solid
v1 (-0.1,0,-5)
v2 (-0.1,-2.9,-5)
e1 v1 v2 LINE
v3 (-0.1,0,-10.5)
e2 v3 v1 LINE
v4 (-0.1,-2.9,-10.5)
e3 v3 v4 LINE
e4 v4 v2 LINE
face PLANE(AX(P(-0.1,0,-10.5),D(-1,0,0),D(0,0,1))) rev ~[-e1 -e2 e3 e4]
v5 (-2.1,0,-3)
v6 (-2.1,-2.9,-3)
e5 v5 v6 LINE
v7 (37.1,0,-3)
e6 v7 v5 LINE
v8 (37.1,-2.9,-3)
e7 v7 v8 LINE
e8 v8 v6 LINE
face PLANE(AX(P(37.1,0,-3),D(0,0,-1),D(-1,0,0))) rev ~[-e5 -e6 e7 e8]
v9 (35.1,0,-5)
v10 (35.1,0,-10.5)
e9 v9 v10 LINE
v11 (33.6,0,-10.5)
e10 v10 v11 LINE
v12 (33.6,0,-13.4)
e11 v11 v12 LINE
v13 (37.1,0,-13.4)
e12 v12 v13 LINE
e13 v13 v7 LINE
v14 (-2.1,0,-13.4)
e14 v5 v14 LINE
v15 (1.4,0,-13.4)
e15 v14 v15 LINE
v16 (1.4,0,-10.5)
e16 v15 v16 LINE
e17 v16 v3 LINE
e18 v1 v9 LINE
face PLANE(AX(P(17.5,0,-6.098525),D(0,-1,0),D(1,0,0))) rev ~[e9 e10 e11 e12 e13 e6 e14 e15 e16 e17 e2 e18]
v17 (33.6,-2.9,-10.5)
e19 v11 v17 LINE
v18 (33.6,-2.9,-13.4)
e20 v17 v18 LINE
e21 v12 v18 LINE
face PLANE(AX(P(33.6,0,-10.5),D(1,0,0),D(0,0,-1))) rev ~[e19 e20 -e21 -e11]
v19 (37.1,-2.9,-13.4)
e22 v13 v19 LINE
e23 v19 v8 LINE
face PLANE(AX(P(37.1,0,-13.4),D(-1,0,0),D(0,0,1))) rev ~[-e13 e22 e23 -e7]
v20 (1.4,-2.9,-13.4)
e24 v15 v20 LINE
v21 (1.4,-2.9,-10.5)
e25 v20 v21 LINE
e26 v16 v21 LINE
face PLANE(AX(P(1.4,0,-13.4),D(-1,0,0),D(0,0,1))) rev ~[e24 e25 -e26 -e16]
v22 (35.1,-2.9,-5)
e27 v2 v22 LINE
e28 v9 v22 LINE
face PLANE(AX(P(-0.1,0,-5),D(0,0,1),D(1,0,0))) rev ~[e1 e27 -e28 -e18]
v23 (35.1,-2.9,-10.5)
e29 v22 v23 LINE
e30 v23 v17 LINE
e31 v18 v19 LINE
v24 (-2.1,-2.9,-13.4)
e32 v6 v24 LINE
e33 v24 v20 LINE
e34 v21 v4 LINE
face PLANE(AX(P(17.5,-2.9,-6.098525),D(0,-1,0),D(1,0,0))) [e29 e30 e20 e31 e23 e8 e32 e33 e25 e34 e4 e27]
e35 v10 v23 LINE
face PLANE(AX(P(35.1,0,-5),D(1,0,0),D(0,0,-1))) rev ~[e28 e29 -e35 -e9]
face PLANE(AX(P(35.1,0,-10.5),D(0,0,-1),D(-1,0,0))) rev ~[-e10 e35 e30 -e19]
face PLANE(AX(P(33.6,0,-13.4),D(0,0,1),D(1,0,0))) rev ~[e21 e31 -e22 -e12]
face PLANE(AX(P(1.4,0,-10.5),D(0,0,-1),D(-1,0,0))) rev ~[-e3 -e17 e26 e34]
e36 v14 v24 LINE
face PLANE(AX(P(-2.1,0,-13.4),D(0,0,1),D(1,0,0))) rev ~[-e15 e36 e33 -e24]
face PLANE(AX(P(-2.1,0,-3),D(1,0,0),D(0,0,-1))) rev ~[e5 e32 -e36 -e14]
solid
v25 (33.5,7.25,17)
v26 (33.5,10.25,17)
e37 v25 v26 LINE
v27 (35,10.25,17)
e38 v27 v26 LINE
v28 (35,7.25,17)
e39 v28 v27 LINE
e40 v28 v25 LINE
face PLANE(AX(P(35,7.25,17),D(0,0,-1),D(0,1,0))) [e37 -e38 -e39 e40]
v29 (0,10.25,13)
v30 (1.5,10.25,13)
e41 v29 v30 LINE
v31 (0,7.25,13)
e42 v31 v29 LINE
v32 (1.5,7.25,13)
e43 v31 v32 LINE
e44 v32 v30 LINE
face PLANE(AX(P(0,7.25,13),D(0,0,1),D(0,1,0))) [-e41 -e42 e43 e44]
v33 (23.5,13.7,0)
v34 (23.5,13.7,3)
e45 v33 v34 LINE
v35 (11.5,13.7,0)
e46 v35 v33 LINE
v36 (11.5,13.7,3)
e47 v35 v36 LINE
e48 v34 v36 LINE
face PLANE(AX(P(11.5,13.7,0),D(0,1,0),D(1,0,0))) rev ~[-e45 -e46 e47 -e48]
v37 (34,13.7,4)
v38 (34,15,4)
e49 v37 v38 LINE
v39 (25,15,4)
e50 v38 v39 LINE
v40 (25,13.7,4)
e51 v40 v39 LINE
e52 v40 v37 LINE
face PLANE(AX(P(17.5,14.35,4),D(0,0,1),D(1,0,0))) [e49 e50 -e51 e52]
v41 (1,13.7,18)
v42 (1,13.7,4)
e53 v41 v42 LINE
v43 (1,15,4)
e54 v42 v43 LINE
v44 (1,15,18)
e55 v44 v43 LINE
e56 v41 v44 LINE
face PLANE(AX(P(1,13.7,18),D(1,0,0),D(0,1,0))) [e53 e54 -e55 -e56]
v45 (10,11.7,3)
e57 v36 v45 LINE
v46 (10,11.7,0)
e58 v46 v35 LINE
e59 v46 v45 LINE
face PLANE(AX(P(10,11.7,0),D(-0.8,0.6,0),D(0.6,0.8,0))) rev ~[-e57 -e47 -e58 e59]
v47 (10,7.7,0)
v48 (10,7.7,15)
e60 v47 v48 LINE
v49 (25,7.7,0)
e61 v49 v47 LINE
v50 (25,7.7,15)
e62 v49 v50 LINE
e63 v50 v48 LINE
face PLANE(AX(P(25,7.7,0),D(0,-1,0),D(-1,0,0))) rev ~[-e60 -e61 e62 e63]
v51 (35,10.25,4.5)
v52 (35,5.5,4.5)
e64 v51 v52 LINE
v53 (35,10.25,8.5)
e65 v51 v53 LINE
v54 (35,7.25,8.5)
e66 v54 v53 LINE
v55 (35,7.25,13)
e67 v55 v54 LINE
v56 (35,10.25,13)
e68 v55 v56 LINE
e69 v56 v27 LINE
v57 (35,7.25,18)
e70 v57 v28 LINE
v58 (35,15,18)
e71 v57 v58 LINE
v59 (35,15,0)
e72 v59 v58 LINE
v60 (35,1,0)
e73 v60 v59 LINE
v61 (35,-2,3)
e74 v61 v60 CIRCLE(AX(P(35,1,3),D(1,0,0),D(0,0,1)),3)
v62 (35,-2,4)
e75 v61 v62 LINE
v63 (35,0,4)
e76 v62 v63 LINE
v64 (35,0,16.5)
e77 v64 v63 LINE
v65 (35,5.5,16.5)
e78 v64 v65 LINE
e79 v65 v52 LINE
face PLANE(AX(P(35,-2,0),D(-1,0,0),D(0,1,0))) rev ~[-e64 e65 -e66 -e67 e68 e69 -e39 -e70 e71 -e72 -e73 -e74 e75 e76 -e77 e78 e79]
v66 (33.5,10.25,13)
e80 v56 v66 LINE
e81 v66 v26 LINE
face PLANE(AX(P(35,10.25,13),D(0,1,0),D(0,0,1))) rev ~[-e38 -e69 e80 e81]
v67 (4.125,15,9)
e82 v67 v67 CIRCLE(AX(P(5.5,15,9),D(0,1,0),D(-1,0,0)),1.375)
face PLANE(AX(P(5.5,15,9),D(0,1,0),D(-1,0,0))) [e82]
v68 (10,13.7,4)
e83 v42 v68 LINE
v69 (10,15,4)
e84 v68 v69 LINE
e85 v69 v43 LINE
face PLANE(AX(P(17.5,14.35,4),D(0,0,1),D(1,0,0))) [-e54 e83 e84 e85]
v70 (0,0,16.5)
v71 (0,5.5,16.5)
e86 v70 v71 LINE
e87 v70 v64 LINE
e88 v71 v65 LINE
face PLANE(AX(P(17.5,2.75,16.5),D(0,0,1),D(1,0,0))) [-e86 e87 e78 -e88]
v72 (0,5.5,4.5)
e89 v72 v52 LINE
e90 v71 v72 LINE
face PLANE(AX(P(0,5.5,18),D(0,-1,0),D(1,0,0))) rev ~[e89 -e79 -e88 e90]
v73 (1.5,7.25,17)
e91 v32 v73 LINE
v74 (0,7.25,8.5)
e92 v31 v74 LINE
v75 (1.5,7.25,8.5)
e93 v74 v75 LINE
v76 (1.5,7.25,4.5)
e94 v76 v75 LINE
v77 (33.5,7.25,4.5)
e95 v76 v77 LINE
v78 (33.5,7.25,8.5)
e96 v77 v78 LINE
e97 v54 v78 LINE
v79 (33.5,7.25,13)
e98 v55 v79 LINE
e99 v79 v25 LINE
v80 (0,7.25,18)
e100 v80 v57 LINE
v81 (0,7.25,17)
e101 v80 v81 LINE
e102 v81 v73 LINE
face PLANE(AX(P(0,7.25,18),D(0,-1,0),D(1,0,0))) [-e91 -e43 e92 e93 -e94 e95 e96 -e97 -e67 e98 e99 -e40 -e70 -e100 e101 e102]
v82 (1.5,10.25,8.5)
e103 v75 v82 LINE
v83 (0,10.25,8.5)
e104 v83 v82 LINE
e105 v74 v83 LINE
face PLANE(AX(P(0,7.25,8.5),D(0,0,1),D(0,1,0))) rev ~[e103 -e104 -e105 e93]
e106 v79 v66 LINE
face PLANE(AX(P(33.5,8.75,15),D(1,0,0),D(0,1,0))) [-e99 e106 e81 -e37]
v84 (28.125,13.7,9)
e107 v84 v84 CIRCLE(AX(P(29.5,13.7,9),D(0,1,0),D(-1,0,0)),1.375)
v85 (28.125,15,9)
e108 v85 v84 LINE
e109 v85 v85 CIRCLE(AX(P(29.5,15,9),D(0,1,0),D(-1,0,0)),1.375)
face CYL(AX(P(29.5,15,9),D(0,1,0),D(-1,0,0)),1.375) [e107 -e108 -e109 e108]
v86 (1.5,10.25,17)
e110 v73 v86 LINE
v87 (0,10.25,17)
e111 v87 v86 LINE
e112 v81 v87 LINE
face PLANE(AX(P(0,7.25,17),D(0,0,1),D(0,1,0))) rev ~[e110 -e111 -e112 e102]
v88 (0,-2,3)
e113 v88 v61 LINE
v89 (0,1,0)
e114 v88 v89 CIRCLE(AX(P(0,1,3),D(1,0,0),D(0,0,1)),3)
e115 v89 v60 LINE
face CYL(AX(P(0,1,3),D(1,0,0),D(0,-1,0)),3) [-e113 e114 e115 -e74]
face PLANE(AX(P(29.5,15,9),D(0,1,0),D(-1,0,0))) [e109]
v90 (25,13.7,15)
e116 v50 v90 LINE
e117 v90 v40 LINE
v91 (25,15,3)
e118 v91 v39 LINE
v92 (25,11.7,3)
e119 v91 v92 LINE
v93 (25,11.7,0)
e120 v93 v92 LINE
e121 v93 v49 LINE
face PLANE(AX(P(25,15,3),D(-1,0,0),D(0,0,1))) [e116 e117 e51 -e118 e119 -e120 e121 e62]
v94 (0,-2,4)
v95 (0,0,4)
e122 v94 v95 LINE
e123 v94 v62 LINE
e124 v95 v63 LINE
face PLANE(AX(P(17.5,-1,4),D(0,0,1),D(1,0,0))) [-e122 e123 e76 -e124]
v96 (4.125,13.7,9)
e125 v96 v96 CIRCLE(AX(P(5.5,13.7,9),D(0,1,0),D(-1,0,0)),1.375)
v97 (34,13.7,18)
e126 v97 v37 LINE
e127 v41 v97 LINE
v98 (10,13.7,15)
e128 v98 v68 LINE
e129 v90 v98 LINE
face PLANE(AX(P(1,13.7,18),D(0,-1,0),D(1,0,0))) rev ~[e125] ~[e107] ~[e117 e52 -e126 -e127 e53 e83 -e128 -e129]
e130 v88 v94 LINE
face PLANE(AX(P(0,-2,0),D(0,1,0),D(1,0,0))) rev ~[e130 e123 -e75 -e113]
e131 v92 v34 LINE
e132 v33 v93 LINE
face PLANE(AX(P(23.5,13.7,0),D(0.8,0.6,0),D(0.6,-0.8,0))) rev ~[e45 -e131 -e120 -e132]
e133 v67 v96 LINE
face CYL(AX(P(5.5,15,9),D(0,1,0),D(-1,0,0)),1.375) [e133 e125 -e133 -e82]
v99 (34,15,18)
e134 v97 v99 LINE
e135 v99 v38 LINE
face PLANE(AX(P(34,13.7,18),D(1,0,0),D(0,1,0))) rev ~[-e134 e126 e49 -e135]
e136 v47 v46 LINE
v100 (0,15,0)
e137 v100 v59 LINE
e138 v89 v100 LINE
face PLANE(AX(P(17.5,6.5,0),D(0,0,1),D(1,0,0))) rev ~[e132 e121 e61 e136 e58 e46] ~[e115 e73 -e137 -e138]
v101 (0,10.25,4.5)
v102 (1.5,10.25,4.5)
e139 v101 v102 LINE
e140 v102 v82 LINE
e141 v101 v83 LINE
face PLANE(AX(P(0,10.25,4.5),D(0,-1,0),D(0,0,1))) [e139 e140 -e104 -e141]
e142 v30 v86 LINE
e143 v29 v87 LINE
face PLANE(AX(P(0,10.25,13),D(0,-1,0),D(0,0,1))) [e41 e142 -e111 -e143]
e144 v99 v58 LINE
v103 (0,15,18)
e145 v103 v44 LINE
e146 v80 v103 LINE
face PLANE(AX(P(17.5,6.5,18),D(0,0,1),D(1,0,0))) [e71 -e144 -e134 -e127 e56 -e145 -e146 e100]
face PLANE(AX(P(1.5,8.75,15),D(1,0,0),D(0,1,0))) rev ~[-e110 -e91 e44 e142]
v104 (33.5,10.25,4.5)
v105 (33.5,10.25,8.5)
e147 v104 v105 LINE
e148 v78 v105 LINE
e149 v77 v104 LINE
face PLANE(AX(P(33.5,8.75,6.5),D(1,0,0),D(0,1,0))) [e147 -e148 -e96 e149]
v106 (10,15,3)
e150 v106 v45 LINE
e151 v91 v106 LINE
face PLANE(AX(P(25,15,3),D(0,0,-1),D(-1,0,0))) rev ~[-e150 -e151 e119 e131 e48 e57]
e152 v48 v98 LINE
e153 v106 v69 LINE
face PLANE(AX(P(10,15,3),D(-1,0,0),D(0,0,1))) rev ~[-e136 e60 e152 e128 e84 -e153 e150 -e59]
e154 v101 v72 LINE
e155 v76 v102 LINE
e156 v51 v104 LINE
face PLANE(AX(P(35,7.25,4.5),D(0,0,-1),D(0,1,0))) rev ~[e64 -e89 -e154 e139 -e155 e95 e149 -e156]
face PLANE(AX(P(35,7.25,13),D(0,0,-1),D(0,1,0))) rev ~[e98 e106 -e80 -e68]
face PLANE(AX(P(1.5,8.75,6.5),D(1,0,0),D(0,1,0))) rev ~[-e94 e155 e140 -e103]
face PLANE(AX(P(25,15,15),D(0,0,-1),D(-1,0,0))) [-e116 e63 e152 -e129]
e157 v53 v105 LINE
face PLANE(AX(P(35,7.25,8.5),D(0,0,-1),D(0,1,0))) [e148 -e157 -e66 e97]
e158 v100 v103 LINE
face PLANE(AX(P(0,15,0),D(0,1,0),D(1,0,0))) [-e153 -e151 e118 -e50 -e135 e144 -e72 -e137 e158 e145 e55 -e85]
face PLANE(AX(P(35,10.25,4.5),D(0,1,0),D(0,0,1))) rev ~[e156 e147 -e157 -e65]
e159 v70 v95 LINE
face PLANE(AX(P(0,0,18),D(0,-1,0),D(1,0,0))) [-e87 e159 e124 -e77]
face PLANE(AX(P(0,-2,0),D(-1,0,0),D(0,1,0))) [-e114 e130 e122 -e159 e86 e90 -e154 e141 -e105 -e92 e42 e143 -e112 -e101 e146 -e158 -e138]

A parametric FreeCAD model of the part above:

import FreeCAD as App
import Part
import Sketcher
from FreeCAD import Vector
Q = App.Units.Quantity


def edges_at(feature, points):
    """Names of the edges that pass closest to the given points."""
    edges = feature.Shape.Edges
    near = lambda p: min(range(len(edges)), key=lambda i: edges[i].distToShape(Part.Vertex(*p))[0])
    return sorted({f"Edge{near(p) + 1}" for p in points})


def add_polygon(sketch, points):
    """Adds a closed chain of lines whose ends are joined by coincident constraints."""
    first, n = sketch.GeometryCount, len(points)
    for a, b in zip(points, points[1:] + points[:1]):
        sketch.addGeometry(Part.LineSegment(App.Vector(*a, 0), App.Vector(*b, 0)), False)
    for i in range(n):
        sketch.addConstraint(Sketcher.Constraint("Coincident", first + i, 2, first + (i + 1) % n, 1))

doc = App.newDocument("Part")
body = doc.addObject("PartDesign::Body", "Body")

# Sketch on XY plane
sketch1 = body.newObject("Sketcher::SketchObject", "Sketch")
sketch1.AttachmentSupport = (doc.getObject("XY_Plane"), [""])
sketch1.MapMode = "FlatFace"
add_polygon(sketch1, [(0, 15), (0, -2), (35, -2), (35, 15)])  # lines 0-3
sketch1.addConstraint([
    Sketcher.Constraint("Vertical", 0),
    Sketcher.Constraint("Horizontal", 1),
    Sketcher.Constraint("Vertical", 2),
    Sketcher.Constraint("Horizontal", 3),
    Sketcher.Constraint("PointOnObject", 0, 2, -2),
    Sketcher.Constraint("DistanceX", 1, 1, 1, 2, Q("35 mm")),
    Sketcher.Constraint("DistanceY", 0, 2, 0, 1, Q("17 mm")),
    Sketcher.Constraint("DistanceY", 0, 2, -1, 1, Q("2 mm")),
])
pad1 = body.newObject("PartDesign::Pad", "Pad")
pad1.Profile = sketch1
pad1.Length = 18

# Sketch on XY plane
sketch2 = body.newObject("Sketcher::SketchObject", "Sketch001")
sketch2.AttachmentSupport = (doc.getObject("XY_Plane"), [""])
sketch2.MapMode = "FlatFace"
sketch2.AttachmentOffset = App.Placement(Vector(0, 0, 18), App.Rotation())
add_polygon(sketch2, [(0, 7.25), (0, 5.5), (35, 5.5), (35, 7.25)])  # lines 0-3
sketch2.addConstraint([
    Sketcher.Constraint("Vertical", 0),
    Sketcher.Constraint("Horizontal", 1),
    Sketcher.Constraint("Vertical", 2),
    Sketcher.Constraint("Horizontal", 3),
    Sketcher.Constraint("PointOnObject", 0, 2, -2),
    Sketcher.Constraint("DistanceX", 1, 1, 1, 2, Q("35 mm")),
    Sketcher.Constraint("DistanceY", 0, 2, 0, 1, Q("1.75 mm")),
    Sketcher.Constraint("DistanceY", -1, 1, 0, 2, Q("5.5 mm")),
])
pocket1 = body.newObject("PartDesign::Pocket", "Pocket")
pocket1.Profile = sketch2
pocket1.Length = 13.5

# Sketch on XY plane
sketch3 = body.newObject("Sketcher::SketchObject", "Sketch002")
sketch3.AttachmentSupport = (doc.getObject("XY_Plane"), [""])
sketch3.MapMode = "FlatFace"
add_polygon(sketch3, [(11.5, 13.7), (23.5, 13.7), (25, 11.7), (25, 7.7), (10, 7.7), (10, 11.7)])  # lines 0-5
sketch3.addConstraint([
    Sketcher.Constraint("Horizontal", 0),
    Sketcher.Constraint("Vertical", 2),
    Sketcher.Constraint("Horizontal", 3),
    Sketcher.Constraint("Vertical", 4),
    Sketcher.Constraint("Horizontal", 1, 2, 4, 2),
    Sketcher.Constraint("Equal", 1, 5),
    Sketcher.Constraint("DistanceX", 0, 1, 0, 2, Q("12 mm")),
    Sketcher.Constraint("DistanceX", 3, 2, 3, 1, Q("15 mm")),
    Sketcher.Constraint("DistanceY", 2, 2, 2, 1, Q("4 mm")),
    Sketcher.Constraint("DistanceX", -1, 1, 1, 2, Q("25 mm")),
    Sketcher.Constraint("DistanceY", 1, 2, 0, 2, Q("2 mm")),
    Sketcher.Constraint("DistanceY", -1, 1, 0, 2, Q("13.7 mm")),
])
pocket2 = body.newObject("PartDesign::Pocket", "Pocket001")
pocket2.Profile = sketch3
pocket2.Length = 15
pocket2.Reversed = True

# Sketch on XY plane
sketch4 = body.newObject("Sketcher::SketchObject", "Sketch003")
sketch4.AttachmentSupport = (doc.getObject("XY_Plane"), [""])
sketch4.MapMode = "FlatFace"
sketch4.AttachmentOffset = App.Placement(Vector(0, 0, 18), App.Rotation())
add_polygon(sketch4, [(1, 15), (1, 13.7), (34, 13.7), (34, 15)])  # lines 0-3
sketch4.addConstraint([
    Sketcher.Constraint("Vertical", 0),
    Sketcher.Constraint("Horizontal", 1),
    Sketcher.Constraint("Vertical", 2),
    Sketcher.Constraint("Horizontal", 3),
    Sketcher.Constraint("DistanceX", 1, 1, 1, 2, Q("33 mm")),
    Sketcher.Constraint("DistanceY", 0, 2, 0, 1, Q("1.3 mm")),
    Sketcher.Constraint("DistanceX", -1, 1, 0, 2, Q("1 mm")),
    Sketcher.Constraint("DistanceY", -1, 1, 2, 2, Q("15 mm")),
])
pocket3 = body.newObject("PartDesign::Pocket", "Pocket002")
pocket3.Profile = sketch4
pocket3.Length = 14

# Sketch on XZ plane
sketch5 = body.newObject("Sketcher::SketchObject", "Sketch004")
sketch5.AttachmentSupport = (doc.getObject("XZ_Plane"), [""])
sketch5.MapMode = "FlatFace"
sketch5.AttachmentOffset = App.Placement(Vector(0, 0, -15), App.Rotation())
sketch5.addGeometry([
    Part.Circle(Vector(29.5, 9, 0), Vector(0, 0, 1), 1.375),
    Part.Circle(Vector(5.5, 9, 0), Vector(0, 0, 1), 1.375),
], False)
sketch5.addConstraint([
    Sketcher.Constraint("Equal", 0, 1),
    Sketcher.Constraint("Horizontal", 0, 3, 1, 3),
    Sketcher.Constraint("Diameter", 0, Q("2.75 mm")),
    Sketcher.Constraint("DistanceY", -1, 1, 0, 3, Q("9 mm")),
    Sketcher.Constraint("DistanceX", 1, 3, 0, 3, Q("24 mm")),
    Sketcher.Constraint("DistanceX", -1, 1, 0, 3, Q("29.5 mm")),
])
pad2 = body.newObject("PartDesign::Pad", "Pad001")
pad2.Profile = sketch5
pad2.Length = 1.5

# Sketch on XZ plane
sketch6 = body.newObject("Sketcher::SketchObject", "Sketch005")
sketch6.AttachmentSupport = (doc.getObject("XZ_Plane"), [""])
sketch6.MapMode = "FlatFace"
sketch6.AttachmentOffset = App.Placement(Vector(0, 0, -15), App.Rotation())
add_polygon(sketch6, [(25, 15), (25, 3), (10, 3), (10, 15)])  # lines 0-3
sketch6.addConstraint([
    Sketcher.Constraint("Vertical", 0),
    Sketcher.Constraint("Horizontal", 1),
    Sketcher.Constraint("Vertical", 2),
    Sketcher.Constraint("Horizontal", 3),
    Sketcher.Constraint("DistanceX", 1, 2, 1, 1, Q("15 mm")),
    Sketcher.Constraint("DistanceY", 0, 2, 0, 1, Q("12 mm")),
    Sketcher.Constraint("DistanceX", -1, 1, 0, 2, Q("25 mm")),
    Sketcher.Constraint("DistanceY", -1, 1, 0, 2, Q("3 mm")),
])
pocket4 = body.newObject("PartDesign::Pocket", "Pocket003")
pocket4.Profile = sketch6
pocket4.Length = 4
pocket4.Reversed = True

# Sketch on XY plane
sketch7 = body.newObject("Sketcher::SketchObject", "Sketch006")
sketch7.AttachmentSupport = (doc.getObject("XY_Plane"), [""])
sketch7.MapMode = "FlatFace"
sketch7.AttachmentOffset = App.Placement(Vector(0, 0, 18), App.Rotation())
add_polygon(sketch7, [(0, 0), (0, -2), (35, -2), (35, 0)])  # lines 0-3
sketch7.addConstraint([
    Sketcher.Constraint("Vertical", 0),
    Sketcher.Constraint("Horizontal", 1),
    Sketcher.Constraint("Vertical", 2),
    Sketcher.Constraint("Horizontal", 3),
    Sketcher.Constraint("Coincident", 3, 2, -1, 1),
    Sketcher.Constraint("DistanceX", 1, 1, 1, 2, Q("35 mm")),
    Sketcher.Constraint("DistanceY", 0, 2, 0, 1, Q("2 mm")),
])
pocket5 = body.newObject("PartDesign::Pocket", "Pocket004")
pocket5.Profile = sketch7
pocket5.Length = 14

# Sketch on XZ plane
sketch8 = body.newObject("Sketcher::SketchObject", "Sketch007")
sketch8.AttachmentSupport = (doc.getObject("XZ_Plane"), [""])
sketch8.MapMode = "FlatFace"
sketch8.AttachmentOffset = App.Placement(Vector(0, 0, -15), App.Rotation())
add_polygon(sketch8, [(26.5, 18), (26.5, 4), (8.5, 4), (8.5, 18)])  # lines 0-3
sketch8.addConstraint([
    Sketcher.Constraint("Vertical", 0),
    Sketcher.Constraint("Horizontal", 1),
    Sketcher.Constraint("Vertical", 2),
    Sketcher.Constraint("Horizontal", 3),
    Sketcher.Constraint("DistanceX", 1, 2, 1, 1, Q("18 mm")),
    Sketcher.Constraint("DistanceY", 0, 2, 0, 1, Q("14 mm")),
    Sketcher.Constraint("DistanceY", -1, 1, 0, 2, Q("4 mm")),
    Sketcher.Constraint("DistanceX", -1, 1, 0, 2, Q("26.5 mm")),
])
pocket6 = body.newObject("PartDesign::Pocket", "Pocket005")
pocket6.Profile = sketch8
pocket6.Length = 0.5
pocket6.Reversed = True
doc.recompute()

fillet = body.newObject("PartDesign::Fillet", "Fillet")
fillet.Base = (pocket6, edges_at(pocket6, [(17.5, -2, 0)]))
fillet.Radius = 3

# Sketch on XY plane
sketch9 = body.newObject("Sketcher::SketchObject", "Sketch008")
sketch9.AttachmentSupport = (doc.getObject("XY_Plane"), [""])
sketch9.MapMode = "FlatFace"
sketch9.AttachmentOffset = App.Placement(Vector(0, 0, 18), App.Rotation())
add_polygon(sketch9, [(0, 5.5), (0, 0), (35, 0), (35, 5.5)])  # lines 0-3
sketch9.addConstraint([
    Sketcher.Constraint("Vertical", 0),
    Sketcher.Constraint("Horizontal", 1),
    Sketcher.Constraint("Vertical", 2),
    Sketcher.Constraint("Horizontal", 3),
    Sketcher.Constraint("Coincident", 0, 2, -1, 1),
    Sketcher.Constraint("DistanceX", 1, 1, 1, 2, Q("35 mm")),
    Sketcher.Constraint("DistanceY", 0, 2, 0, 1, Q("5.5 mm")),
])
pocket7 = body.newObject("PartDesign::Pocket", "Pocket006")
pocket7.Profile = sketch9
pocket7.Length = 1.5

# Sketch on YZ plane
sketch10 = body.newObject("Sketcher::SketchObject", "Sketch009")
sketch10.AttachmentSupport = (doc.getObject("YZ_Plane"), [""])
sketch10.MapMode = "FlatFace"
add_polygon(sketch10, [(7.25, 17), (7.25, 13), (10.25, 13), (10.25, 17)])  # lines 0-3
add_polygon(sketch10, [(7.25, 8.5), (7.25, 4.5), (10.25, 4.5), (10.25, 8.5)])  # lines 4-7
sketch10.addConstraint([
    Sketcher.Constraint("Vertical", 0),
    Sketcher.Constraint("Horizontal", 1),
    Sketcher.Constraint("Vertical", 2),
    Sketcher.Constraint("Horizontal", 3),
    Sketcher.Constraint("Vertical", 4),
    Sketcher.Constraint("Horizontal", 5),
    Sketcher.Constraint("Vertical", 6),
    Sketcher.Constraint("Horizontal", 7),
    Sketcher.Constraint("Vertical", 3, 2, 4, 2),
    Sketcher.Constraint("Vertical", 2, 2, 5, 2),
    Sketcher.Constraint("Equal", 2, 4),
    Sketcher.Constraint("DistanceX", 1, 1, 1, 2, Q("3 mm")),
    Sketcher.Constraint("DistanceY", 0, 2, 0, 1, Q("4 mm")),
    Sketcher.Constraint("DistanceY", -1, 1, 0, 2, Q("13 mm")),
    Sketcher.Constraint("DistanceY", -1, 1, 4, 2, Q("4.5 mm")),
    Sketcher.Constraint("DistanceX", -1, 1, 0, 2, Q("7.25 mm")),
])
pocket8 = body.newObject("PartDesign::Pocket", "Pocket007")
pocket8.Profile = sketch10
pocket8.Length = 1.5
pocket8.Reversed = True

# Sketch on YZ plane
sketch11 = body.newObject("Sketcher::SketchObject", "Sketch010")
sketch11.AttachmentSupport = (doc.getObject("YZ_Plane"), [""])
sketch11.MapMode = "FlatFace"
sketch11.AttachmentOffset = App.Placement(Vector(0, 0, 35), App.Rotation())
add_polygon(sketch11, [(7.25, 17), (7.25, 13), (10.25, 13), (10.25, 17)])  # lines 0-3
add_polygon(sketch11, [(7.25, 8.5), (7.25, 4.5), (10.25, 4.5), (10.25, 8.5)])  # lines 4-7
sketch11.addConstraint([
    Sketcher.Constraint("Vertical", 0),
    Sketcher.Constraint("Horizontal", 1),
    Sketcher.Constraint("Vertical", 2),
    Sketcher.Constraint("Horizontal", 3),
    Sketcher.Constraint("Vertical", 4),
    Sketcher.Constraint("Horizontal", 5),
    Sketcher.Constraint("Vertical", 6),
    Sketcher.Constraint("Horizontal", 7),
    Sketcher.Constraint("Vertical", 3, 2, 4, 2),
    Sketcher.Constraint("Vertical", 2, 2, 5, 2),
    Sketcher.Constraint("Equal", 2, 4),
    Sketcher.Constraint("DistanceX", 1, 1, 1, 2, Q("3 mm")),
    Sketcher.Constraint("DistanceY", 0, 2, 0, 1, Q("4 mm")),
    Sketcher.Constraint("DistanceY", -1, 1, 0, 2, Q("13 mm")),
    Sketcher.Constraint("DistanceY", -1, 1, 4, 2, Q("4.5 mm")),
    Sketcher.Constraint("DistanceX", -1, 1, 0, 2, Q("7.25 mm")),
])
pocket9 = body.newObject("PartDesign::Pocket", "Pocket008")
pocket9.Profile = sketch11
pocket9.Length = 1.5
body2 = doc.addObject("PartDesign::Body", "Body001")

# Sketch on XZ plane
sketch12 = body2.newObject("Sketcher::SketchObject", "Sketch011")
sketch12.AttachmentSupport = (doc.getObject("XZ_Plane001"), [""])
sketch12.MapMode = "FlatFace"
add_polygon(sketch12, [(-0.1, -5), (35.1, -5), (35.1, -10.5), (33.6, -10.5), (33.6, -13.4), (37.1, -13.4), (37.1, -3), (-2.1, -3), (-2.1, -13.4), (1.4, -13.4), (1.4, -10.5), (-0.1, -10.5)])  # lines 0-11
sketch12.addConstraint([
    Sketcher.Constraint("Horizontal", 0),
    Sketcher.Constraint("Vertical", 1),
    Sketcher.Constraint("Horizontal", 2),
    Sketcher.Constraint("Vertical", 3),
    Sketcher.Constraint("Horizontal", 4),
    Sketcher.Constraint("Vertical", 5),
    Sketcher.Constraint("Horizontal", 6),
    Sketcher.Constraint("Vertical", 7),
    Sketcher.Constraint("Horizontal", 8),
    Sketcher.Constraint("Vertical", 9),
    Sketcher.Constraint("Horizontal", 10),
    Sketcher.Constraint("Vertical", 11),
    Sketcher.Constraint("Horizontal", 4, 2, 7, 2),
    Sketcher.Constraint("Horizontal", 2, 2, 9, 2),
    Sketcher.Constraint("Equal", 4, 8),
    Sketcher.Constraint("Equal", 2, 10),
    Sketcher.Constraint("DistanceX", 0, 1, 0, 2, Q("35.2 mm")),
    Sketcher.Constraint("DistanceX", 2, 2, 2, 1, Q("1.5 mm")),
    Sketcher.Constraint("DistanceX", 4, 1, 4, 2, Q("3.5 mm")),
    Sketcher.Constraint("DistanceY", 1, 2, 1, 1, Q("5.5 mm")),
    Sketcher.Constraint("DistanceY", 3, 2, 3, 1, Q("2.9 mm")),
    Sketcher.Constraint("DistanceY", 5, 1, 5, 2, Q("10.4 mm")),
    Sketcher.Constraint("DistanceY", 0, 2, -1, 1, Q("5 mm")),
    Sketcher.Constraint("DistanceX", -1, 1, 0, 2, Q("35.1 mm")),
])
pad3 = body2.newObject("PartDesign::Pad", "Pad002")
pad3.Profile = sketch12
pad3.Length = 2.9

doc.recompute()
